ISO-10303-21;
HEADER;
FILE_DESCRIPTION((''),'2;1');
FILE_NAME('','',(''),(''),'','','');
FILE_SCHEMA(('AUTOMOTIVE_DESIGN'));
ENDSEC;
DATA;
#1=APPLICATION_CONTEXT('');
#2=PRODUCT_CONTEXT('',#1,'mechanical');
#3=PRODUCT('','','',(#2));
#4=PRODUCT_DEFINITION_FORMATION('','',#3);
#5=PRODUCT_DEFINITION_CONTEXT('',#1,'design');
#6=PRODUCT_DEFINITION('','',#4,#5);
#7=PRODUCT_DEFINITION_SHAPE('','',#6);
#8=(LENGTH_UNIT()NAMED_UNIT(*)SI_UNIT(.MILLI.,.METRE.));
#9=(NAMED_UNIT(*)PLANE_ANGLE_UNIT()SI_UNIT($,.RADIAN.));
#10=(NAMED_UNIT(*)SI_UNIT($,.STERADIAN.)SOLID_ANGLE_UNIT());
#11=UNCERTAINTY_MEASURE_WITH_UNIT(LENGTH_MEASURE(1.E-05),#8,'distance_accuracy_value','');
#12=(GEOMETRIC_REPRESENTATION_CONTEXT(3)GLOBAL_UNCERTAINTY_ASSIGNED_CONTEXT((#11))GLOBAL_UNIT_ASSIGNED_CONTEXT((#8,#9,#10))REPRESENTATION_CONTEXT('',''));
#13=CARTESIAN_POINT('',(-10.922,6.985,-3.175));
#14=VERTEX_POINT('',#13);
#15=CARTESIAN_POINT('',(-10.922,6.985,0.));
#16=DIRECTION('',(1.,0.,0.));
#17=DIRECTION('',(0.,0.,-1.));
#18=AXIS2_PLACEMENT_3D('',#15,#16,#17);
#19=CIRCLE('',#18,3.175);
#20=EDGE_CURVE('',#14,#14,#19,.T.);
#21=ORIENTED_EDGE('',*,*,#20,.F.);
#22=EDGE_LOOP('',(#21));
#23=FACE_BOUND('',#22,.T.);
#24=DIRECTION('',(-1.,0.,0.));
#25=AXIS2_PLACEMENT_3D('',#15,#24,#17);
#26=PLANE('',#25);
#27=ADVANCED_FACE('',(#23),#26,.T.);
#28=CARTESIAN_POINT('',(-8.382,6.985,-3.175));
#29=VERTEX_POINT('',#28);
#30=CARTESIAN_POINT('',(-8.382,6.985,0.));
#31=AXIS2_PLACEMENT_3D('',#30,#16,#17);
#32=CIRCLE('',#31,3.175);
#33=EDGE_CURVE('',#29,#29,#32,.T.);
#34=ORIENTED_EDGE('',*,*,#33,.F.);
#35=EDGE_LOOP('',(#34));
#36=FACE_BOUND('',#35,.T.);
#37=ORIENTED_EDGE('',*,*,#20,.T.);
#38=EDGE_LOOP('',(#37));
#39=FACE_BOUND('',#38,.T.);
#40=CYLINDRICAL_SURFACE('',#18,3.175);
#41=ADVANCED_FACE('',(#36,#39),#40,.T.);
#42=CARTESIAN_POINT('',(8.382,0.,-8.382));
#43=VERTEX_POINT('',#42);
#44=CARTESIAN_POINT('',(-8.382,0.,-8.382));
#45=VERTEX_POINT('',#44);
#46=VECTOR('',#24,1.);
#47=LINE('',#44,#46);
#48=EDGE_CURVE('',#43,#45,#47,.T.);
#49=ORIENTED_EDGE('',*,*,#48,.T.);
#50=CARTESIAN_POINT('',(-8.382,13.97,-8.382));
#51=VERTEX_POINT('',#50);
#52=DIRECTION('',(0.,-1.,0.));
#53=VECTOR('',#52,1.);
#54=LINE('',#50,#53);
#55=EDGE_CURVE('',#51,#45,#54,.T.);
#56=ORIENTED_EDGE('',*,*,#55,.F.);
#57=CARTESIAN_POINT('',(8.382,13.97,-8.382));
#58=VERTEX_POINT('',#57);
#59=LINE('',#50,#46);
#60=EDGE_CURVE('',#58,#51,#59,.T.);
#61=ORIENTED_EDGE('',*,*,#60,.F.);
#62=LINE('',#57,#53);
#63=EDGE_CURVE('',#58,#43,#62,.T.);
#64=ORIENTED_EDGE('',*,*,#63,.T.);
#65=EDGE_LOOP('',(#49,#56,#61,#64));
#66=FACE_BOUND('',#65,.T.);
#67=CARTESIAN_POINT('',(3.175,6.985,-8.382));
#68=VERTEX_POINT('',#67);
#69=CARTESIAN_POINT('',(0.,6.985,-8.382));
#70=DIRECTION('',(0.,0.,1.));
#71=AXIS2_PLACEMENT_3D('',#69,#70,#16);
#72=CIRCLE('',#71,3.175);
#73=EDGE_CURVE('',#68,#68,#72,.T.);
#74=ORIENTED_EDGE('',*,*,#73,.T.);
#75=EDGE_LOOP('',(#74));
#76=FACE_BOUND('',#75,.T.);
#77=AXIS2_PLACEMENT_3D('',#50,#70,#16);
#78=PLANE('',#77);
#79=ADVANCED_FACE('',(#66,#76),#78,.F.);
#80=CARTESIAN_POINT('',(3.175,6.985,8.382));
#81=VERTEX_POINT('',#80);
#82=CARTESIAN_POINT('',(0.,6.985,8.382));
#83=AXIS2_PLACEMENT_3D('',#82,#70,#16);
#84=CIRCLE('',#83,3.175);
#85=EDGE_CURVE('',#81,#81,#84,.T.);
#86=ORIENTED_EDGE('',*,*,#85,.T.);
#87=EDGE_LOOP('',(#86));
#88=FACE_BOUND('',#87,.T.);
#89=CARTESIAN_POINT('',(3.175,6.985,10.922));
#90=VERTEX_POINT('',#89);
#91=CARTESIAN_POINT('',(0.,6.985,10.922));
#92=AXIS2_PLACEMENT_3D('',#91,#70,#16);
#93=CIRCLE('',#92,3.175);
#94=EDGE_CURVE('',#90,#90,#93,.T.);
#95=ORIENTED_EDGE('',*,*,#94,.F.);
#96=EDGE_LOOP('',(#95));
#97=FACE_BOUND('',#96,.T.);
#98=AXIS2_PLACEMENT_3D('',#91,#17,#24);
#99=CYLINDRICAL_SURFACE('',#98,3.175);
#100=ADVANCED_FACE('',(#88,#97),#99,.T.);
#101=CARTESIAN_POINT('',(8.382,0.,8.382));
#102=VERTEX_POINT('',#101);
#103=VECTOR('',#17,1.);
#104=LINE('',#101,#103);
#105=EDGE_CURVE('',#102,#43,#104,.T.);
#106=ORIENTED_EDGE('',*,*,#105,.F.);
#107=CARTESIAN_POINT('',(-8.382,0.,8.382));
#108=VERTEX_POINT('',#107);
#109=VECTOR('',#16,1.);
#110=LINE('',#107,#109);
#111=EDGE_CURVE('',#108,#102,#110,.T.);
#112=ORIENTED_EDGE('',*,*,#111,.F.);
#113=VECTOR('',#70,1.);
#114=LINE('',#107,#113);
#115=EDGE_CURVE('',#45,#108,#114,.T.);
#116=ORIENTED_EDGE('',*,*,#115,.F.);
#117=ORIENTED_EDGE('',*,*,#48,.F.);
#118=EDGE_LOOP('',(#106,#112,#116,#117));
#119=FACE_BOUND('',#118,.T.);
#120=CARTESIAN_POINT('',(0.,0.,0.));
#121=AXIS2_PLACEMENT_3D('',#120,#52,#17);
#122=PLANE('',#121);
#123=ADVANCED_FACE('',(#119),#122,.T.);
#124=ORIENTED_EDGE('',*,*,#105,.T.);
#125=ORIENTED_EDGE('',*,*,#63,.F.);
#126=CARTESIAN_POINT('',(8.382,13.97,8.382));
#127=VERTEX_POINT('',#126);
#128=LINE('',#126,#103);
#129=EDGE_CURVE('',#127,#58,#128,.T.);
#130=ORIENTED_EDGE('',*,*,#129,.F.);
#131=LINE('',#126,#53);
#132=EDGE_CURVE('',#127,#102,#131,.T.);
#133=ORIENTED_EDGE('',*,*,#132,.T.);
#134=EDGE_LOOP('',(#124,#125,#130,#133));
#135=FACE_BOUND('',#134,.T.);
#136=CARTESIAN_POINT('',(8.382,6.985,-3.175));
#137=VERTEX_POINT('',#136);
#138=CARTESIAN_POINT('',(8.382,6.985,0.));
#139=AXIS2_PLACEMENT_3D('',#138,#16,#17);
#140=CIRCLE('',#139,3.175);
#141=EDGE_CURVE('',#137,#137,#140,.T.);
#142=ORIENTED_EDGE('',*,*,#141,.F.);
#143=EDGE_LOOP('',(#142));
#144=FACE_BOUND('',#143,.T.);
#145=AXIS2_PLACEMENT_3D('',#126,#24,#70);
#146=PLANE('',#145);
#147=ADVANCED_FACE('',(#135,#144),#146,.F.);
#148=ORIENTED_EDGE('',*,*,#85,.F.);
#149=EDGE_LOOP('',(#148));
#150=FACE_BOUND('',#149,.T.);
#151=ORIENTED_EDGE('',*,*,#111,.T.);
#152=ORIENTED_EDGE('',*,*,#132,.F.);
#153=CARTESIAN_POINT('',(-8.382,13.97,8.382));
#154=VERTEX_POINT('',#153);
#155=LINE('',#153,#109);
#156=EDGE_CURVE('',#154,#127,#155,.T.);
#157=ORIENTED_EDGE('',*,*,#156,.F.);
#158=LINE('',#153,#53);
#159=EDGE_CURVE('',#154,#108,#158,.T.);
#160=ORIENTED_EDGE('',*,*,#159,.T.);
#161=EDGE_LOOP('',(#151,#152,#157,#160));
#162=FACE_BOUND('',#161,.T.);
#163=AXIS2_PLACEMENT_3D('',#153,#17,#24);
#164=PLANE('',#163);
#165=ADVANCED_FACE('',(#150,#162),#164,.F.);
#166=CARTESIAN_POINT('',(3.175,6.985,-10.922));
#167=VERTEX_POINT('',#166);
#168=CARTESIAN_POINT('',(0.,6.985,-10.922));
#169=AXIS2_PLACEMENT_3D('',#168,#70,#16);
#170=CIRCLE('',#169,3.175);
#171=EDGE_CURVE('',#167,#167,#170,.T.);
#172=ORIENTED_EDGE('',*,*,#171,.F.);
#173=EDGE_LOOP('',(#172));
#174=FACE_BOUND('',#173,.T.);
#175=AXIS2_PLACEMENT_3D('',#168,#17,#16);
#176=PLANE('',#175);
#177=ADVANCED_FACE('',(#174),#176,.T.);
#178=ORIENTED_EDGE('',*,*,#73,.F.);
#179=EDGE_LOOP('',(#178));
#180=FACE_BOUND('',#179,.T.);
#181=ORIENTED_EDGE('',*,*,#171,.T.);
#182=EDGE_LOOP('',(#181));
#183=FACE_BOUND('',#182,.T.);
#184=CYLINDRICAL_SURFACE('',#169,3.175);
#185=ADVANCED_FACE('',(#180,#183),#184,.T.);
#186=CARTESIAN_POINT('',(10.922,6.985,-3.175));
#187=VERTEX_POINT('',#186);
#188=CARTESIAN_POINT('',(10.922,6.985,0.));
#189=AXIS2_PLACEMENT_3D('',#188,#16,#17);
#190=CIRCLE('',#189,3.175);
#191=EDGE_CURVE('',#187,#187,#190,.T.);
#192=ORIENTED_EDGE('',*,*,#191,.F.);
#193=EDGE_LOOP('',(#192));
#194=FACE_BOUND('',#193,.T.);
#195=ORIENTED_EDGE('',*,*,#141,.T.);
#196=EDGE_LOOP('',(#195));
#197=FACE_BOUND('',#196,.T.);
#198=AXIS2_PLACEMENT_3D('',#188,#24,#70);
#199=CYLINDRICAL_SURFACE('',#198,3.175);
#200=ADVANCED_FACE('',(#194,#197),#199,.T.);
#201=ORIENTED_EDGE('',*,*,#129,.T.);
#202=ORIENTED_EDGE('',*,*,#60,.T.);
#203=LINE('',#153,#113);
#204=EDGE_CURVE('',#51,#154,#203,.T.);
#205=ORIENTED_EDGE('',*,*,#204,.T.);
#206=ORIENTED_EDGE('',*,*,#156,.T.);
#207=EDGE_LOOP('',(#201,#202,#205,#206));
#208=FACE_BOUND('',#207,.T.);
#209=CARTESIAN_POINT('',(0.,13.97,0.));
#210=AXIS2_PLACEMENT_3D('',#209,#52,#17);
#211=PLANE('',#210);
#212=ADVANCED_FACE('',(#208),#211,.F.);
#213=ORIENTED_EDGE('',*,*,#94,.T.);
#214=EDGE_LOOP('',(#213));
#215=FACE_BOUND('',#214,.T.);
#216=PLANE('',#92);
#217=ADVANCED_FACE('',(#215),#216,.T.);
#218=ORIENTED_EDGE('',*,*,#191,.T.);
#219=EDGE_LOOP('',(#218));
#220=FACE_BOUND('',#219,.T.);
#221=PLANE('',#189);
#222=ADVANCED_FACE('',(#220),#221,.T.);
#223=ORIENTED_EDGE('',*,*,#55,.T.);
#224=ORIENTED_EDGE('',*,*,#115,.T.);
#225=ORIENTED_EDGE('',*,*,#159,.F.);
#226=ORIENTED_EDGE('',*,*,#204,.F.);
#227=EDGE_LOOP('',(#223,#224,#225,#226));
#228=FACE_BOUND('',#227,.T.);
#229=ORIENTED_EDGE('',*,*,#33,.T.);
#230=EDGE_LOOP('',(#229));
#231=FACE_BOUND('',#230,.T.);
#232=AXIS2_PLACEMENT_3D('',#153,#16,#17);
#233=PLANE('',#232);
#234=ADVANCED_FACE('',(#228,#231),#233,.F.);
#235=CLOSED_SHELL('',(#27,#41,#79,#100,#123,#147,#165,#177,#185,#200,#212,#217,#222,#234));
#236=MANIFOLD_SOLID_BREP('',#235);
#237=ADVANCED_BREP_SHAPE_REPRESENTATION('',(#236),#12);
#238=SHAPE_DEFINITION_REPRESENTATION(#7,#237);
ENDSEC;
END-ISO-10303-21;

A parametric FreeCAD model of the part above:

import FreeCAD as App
import Part
import Sketcher

V = App.Vector
Q = App.Units.Quantity


def add_polygon(sketch, points):
    """Adds a closed chain of lines whose ends are joined by coincident constraints."""
    first, n = sketch.GeometryCount, len(points)
    for a, b in zip(points, points[1:] + points[:1]):
        sketch.addGeometry(Part.LineSegment(App.Vector(*a, 0), App.Vector(*b, 0)), False)
    for i in range(n):
        sketch.addConstraint(Sketcher.Constraint("Coincident", first + i, 2, first + (i + 1) % n, 1))

doc = App.newDocument("Part")
body = doc.addObject("PartDesign::Body", "Body")

sketch1 = body.newObject("Sketcher::SketchObject", "Sketch")
sketch1.AttachmentSupport = (doc.getObject("XZ_Plane"), [""])
sketch1.MapMode = "FlatFace"
add_polygon(sketch1, [(-8, -8), (-8, 8), (8, 8), (8, -8)])
sketch1.addConstraint(Sketcher.Constraint("Vertical", 0))
sketch1.addConstraint(Sketcher.Constraint("Horizontal", 1))
sketch1.addConstraint(Sketcher.Constraint("Vertical", 2))
sketch1.addConstraint(Sketcher.Constraint("Horizontal", 3))
sketch1.addConstraint(Sketcher.Constraint("Symmetric", 0, 2, 2, 2, -1, 1))
sketch1.addConstraint(Sketcher.Constraint("Equal", 3, 0))
sketch1.addConstraint(Sketcher.Constraint("DistanceX", 1, 1, 1, 2, Q("0.66 in")))
pad1 = body.newObject("PartDesign::Pad", "Pad")
pad1.Profile = sketch1
pad1.Length = Q("0.55 in")
pad1.Reversed = True

sketch2 = body.newObject("Sketcher::SketchObject", "Sketch001")
sketch2.AttachmentSupport = (doc.getObject("XY_Plane"), [""])
sketch2.MapMode = "FlatFace"
sketch2.AttachmentOffset = App.Placement(V(0, 0, 0.33 * 25.4), App.Rotation())
sketch2.addGeometry(Part.Circle(V(0, 7, 0), V(0, 0, 1), 3.2), False)
sketch2.addConstraint(Sketcher.Constraint("PointOnObject", 0, 3, -2))
sketch2.addConstraint(Sketcher.Constraint("Diameter", 0, Q("0.25 in")))
sketch2.addConstraint(Sketcher.Constraint("DistanceY", -1, 1, 0, 3, Q("0.275 in")))
pad2 = body.newObject("PartDesign::Pad", "Pad001")
pad2.Profile = sketch2
pad2.Length = Q("0.1 in")
doc.recompute()

mirrored = body.newObject("PartDesign::Mirrored", "Mirrored")
mirrored.Originals = [pad2]
mirrored.MirrorPlane = (doc.getObject("XY_Plane"), [""])
body.Tip = mirrored

sketch3 = body.newObject("Sketcher::SketchObject", "Sketch002")
sketch3.AttachmentSupport = (doc.getObject("YZ_Plane"), [""])
sketch3.MapMode = "FlatFace"
sketch3.AttachmentOffset = App.Placement(V(0, 0, 0.33 * 25.4), App.Rotation())
sketch3.addGeometry(Part.Circle(V(7, 0, 0), V(0, 0, 1), 3.2), False)
sketch3.addConstraint(Sketcher.Constraint("PointOnObject", 0, 3, -1))
sketch3.addConstraint(Sketcher.Constraint("Diameter", 0, Q("0.25 in")))
sketch3.addConstraint(Sketcher.Constraint("DistanceX", -1, 1, 0, 3, Q("0.275 in")))
pad3 = body.newObject("PartDesign::Pad", "Pad002")
pad3.Profile = sketch3
pad3.Length = Q("0.1 in")
doc.recompute()

mirrored2 = body.newObject("PartDesign::Mirrored", "Mirrored001")
mirrored2.Originals = [pad3]
mirrored2.MirrorPlane = (doc.getObject("YZ_Plane"), [""])
body.Tip = mirrored2

doc.recompute()
